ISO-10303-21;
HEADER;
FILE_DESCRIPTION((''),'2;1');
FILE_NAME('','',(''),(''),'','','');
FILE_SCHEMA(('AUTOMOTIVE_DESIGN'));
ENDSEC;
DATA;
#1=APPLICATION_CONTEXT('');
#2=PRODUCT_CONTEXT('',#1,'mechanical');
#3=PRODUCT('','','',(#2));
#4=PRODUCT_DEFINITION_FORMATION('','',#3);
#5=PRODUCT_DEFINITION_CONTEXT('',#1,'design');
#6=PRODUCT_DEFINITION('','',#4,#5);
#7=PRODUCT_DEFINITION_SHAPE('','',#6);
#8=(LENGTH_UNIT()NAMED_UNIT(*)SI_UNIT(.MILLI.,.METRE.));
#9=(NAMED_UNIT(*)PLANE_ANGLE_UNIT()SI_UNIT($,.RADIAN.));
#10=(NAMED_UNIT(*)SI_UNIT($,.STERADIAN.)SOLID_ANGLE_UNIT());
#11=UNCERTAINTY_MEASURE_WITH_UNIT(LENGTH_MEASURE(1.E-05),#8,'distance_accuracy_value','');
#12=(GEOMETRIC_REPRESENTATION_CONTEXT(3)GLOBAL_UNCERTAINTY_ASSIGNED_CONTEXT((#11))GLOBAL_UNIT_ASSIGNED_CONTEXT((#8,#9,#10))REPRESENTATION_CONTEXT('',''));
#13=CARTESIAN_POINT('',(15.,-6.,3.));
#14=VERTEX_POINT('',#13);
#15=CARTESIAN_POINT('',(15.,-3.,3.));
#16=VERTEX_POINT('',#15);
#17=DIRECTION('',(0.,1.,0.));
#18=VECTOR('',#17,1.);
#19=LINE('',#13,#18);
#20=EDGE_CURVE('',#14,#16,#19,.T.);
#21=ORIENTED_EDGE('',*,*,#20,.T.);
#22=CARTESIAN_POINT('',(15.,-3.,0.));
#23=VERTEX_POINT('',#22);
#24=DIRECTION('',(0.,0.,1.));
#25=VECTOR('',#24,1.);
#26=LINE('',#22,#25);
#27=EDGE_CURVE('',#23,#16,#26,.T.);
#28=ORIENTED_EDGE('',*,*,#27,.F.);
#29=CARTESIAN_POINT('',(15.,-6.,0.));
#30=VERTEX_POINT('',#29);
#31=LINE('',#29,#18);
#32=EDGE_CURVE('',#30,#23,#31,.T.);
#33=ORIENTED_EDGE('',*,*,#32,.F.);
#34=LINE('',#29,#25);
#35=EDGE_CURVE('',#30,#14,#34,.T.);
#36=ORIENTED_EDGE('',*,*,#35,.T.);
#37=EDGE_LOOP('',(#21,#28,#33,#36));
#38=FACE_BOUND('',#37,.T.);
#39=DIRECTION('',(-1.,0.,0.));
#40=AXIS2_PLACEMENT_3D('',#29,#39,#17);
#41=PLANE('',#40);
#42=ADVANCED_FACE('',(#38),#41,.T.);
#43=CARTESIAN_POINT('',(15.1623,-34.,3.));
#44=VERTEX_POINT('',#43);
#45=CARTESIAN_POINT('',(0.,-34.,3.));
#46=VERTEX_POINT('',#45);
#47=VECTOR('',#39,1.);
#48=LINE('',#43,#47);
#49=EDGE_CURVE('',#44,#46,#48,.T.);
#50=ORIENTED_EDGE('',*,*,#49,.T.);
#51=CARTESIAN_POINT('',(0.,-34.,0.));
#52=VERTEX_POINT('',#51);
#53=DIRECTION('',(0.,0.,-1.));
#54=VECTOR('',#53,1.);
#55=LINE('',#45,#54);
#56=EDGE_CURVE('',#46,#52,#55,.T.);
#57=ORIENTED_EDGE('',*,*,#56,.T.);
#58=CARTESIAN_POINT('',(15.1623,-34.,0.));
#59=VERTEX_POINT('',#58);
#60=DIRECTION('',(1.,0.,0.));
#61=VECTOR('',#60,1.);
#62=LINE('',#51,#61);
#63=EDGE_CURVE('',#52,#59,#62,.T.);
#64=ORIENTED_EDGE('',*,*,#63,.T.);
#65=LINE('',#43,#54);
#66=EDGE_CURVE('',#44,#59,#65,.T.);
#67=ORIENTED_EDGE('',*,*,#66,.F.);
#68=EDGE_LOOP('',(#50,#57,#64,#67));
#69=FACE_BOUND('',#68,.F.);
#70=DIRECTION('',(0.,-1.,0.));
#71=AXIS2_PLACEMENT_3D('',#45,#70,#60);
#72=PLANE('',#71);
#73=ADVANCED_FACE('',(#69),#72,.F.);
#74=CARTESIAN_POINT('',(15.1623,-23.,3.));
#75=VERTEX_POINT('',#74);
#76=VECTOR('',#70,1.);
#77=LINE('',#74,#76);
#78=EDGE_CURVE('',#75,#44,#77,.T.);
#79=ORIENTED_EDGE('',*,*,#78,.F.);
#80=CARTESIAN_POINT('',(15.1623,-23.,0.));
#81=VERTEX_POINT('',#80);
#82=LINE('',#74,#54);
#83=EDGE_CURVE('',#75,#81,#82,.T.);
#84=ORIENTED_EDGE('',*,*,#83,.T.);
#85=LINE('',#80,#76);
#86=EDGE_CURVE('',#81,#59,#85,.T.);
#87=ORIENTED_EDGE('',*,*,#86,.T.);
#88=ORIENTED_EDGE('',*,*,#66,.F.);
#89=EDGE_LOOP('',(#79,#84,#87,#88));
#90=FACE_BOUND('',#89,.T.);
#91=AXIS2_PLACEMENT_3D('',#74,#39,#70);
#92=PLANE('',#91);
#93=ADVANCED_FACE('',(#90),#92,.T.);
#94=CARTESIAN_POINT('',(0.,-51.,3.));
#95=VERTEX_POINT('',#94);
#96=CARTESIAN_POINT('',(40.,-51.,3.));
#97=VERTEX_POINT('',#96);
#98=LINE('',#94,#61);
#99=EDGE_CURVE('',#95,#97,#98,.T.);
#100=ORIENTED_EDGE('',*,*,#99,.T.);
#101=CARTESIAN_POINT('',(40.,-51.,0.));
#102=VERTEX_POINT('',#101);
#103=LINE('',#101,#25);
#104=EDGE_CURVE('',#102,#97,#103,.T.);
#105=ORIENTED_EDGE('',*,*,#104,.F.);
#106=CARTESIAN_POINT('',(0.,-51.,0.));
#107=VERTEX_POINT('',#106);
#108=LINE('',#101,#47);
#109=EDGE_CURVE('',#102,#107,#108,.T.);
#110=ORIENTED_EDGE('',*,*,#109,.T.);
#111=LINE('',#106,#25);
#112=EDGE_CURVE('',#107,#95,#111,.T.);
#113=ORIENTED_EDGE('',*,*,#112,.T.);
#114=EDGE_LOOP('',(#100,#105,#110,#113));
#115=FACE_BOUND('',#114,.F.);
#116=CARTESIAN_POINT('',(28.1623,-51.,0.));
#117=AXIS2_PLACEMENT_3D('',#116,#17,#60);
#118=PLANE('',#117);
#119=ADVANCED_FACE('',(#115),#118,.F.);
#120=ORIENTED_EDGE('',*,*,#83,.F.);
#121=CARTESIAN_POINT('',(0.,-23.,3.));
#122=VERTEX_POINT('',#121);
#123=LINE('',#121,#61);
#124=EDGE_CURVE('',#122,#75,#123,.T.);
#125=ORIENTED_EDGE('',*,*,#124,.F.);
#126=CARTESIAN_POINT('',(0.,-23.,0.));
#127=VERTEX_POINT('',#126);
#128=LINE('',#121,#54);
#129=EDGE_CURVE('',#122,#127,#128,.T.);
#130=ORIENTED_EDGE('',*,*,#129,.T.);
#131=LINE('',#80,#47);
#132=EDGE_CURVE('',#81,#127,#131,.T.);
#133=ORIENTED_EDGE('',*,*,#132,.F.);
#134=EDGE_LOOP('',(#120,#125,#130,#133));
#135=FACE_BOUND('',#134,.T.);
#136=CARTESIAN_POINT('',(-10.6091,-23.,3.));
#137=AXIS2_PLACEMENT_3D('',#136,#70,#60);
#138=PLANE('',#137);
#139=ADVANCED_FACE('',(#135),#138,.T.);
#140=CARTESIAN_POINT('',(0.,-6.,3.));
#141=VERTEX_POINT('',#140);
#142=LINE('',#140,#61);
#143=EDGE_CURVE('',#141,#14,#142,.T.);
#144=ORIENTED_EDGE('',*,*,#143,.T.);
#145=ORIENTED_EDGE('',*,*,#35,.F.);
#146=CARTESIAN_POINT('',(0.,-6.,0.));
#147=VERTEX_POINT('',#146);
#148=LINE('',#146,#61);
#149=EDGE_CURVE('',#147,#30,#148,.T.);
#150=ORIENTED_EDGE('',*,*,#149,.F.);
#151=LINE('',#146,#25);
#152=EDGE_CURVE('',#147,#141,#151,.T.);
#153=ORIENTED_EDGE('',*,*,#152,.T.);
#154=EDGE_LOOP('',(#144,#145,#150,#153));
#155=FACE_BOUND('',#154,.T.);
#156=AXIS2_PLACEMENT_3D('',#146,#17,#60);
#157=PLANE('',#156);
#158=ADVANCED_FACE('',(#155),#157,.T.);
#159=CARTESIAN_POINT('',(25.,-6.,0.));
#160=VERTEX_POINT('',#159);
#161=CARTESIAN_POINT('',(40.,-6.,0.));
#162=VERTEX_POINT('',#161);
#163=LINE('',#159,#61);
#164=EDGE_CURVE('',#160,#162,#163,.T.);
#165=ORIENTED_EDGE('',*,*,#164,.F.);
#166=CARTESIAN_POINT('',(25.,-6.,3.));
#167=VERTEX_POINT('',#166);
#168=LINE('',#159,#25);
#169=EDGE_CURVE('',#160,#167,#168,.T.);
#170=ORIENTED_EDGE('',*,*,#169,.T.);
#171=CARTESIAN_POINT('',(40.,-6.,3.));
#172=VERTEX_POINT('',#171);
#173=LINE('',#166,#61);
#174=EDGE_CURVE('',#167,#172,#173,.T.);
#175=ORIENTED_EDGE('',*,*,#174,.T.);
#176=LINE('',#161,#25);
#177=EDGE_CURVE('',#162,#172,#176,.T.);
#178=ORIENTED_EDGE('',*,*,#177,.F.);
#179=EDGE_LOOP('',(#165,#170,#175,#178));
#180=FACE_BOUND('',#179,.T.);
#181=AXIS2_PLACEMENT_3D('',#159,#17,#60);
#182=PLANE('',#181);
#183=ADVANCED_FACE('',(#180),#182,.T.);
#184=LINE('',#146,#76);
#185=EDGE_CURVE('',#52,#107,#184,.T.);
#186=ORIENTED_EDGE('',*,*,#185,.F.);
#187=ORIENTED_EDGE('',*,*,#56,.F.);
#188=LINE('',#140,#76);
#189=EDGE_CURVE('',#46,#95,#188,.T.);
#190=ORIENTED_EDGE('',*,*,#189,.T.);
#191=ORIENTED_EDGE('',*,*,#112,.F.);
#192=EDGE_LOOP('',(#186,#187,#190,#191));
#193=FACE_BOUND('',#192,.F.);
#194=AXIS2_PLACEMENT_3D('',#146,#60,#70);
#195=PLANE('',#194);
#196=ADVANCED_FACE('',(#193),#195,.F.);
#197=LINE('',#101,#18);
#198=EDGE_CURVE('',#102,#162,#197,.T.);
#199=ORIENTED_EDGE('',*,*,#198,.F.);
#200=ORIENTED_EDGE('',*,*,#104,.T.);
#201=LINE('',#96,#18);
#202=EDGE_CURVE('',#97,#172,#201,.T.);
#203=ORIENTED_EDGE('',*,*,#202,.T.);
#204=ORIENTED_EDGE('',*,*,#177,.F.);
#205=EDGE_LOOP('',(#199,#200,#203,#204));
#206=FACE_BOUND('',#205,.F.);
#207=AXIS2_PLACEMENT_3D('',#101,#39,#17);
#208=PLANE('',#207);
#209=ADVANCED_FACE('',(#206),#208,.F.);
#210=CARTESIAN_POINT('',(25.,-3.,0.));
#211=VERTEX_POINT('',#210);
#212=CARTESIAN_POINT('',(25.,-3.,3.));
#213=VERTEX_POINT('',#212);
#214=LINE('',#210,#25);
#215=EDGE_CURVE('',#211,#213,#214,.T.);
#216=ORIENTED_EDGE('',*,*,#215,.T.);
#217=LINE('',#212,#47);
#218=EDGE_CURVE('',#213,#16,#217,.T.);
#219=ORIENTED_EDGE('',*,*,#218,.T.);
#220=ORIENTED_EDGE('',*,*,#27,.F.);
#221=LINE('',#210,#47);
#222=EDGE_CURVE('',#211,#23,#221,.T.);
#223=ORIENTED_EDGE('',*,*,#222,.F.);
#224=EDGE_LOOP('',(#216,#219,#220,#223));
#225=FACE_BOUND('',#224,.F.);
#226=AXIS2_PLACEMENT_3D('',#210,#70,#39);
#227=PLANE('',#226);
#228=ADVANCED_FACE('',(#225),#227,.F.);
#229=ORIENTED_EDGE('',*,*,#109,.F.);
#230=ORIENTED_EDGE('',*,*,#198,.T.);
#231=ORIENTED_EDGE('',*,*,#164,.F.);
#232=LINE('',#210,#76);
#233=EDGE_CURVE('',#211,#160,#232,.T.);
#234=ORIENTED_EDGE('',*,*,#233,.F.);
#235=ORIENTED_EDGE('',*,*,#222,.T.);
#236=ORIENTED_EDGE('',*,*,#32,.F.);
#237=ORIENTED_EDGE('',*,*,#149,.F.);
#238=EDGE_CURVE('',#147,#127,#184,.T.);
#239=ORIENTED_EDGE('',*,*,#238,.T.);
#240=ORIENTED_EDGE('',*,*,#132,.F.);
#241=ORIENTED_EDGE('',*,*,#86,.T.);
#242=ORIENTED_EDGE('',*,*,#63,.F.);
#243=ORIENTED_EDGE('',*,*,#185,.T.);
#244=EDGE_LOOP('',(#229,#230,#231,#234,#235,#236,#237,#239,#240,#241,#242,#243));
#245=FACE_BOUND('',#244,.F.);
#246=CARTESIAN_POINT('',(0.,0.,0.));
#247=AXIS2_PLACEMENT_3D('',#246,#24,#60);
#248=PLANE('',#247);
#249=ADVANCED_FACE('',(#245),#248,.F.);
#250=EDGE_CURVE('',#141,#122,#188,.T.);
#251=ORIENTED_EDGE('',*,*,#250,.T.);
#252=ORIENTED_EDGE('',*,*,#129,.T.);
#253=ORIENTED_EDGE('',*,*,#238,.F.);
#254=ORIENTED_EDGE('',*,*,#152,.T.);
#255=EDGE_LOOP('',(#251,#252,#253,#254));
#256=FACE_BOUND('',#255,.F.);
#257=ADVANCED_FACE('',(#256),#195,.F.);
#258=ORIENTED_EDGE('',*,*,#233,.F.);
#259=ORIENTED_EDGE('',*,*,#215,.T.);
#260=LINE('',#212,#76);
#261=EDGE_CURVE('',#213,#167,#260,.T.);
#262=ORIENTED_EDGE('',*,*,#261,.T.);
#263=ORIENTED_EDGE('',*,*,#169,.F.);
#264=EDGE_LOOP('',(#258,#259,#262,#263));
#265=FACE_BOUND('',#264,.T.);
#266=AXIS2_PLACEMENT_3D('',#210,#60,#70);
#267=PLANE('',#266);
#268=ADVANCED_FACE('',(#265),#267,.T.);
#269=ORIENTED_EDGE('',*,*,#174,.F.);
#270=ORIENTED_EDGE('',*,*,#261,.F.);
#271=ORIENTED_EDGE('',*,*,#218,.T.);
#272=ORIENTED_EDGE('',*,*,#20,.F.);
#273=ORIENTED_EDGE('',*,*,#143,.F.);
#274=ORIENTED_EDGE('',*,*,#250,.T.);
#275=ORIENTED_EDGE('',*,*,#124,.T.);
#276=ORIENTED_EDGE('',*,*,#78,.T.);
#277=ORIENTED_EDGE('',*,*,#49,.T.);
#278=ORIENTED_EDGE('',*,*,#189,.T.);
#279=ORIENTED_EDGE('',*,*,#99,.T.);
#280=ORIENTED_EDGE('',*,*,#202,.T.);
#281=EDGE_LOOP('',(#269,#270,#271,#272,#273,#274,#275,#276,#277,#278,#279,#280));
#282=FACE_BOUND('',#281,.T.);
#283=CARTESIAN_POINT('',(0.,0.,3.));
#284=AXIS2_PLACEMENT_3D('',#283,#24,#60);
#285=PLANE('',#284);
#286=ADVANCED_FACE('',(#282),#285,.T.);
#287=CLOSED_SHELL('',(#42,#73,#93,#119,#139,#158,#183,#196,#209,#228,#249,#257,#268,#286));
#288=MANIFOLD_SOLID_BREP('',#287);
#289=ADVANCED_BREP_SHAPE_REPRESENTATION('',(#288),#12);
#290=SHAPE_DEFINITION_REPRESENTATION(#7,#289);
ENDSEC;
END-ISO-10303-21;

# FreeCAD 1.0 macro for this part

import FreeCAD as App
import Part
import Sketcher
from FreeCAD import Vector


def add_polygon(sketch, points):
    """Adds a closed chain of lines whose ends are joined by coincident constraints."""
    first, n = sketch.GeometryCount, len(points)
    for a, b in zip(points, points[1:] + points[:1]):
        sketch.addGeometry(Part.LineSegment(App.Vector(*a, 0), App.Vector(*b, 0)), False)
    for i in range(n):
        sketch.addConstraint(Sketcher.Constraint("Coincident", first + i, 2, first + (i + 1) % n, 1))

doc = App.newDocument("Part")
params = doc.addObject("Spreadsheet::Sheet", "Params")
for row, (alias, value) in enumerate([
    ("sketch1_width", "10 mm"),
    ("sketch1_width2", "15 mm"),
    ("sketch1_height", "3 mm"),
    ("sketch1_height2", "45 mm"),
    ("pad1_length", "3 mm"),
    ("sketch2_height", "11 mm"),
    ("pocket1_length", "3 mm"),
    ("sketch3_height", "11 mm"),
    ("pocket2_length", "3 mm"),
], start=1):
    params.set(f"A{row}", alias)
    params.set(f"B{row}", "=" + value)
    params.setAlias(f"B{row}", alias)

body = doc.addObject("PartDesign::Body", "Body")

# Sketch on XY plane
sketch1 = body.newObject("Sketcher::SketchObject", "Sketch")
sketch1.AttachmentSupport = (doc.getObject("XY_Plane"), [""])
sketch1.MapMode = "FlatFace"
add_polygon(sketch1, [(25, -6), (25, -3), (15, -3), (15, -6), (0, -6), (0, -51), (40, -51), (40, -6)])  # lines 0-7
sketch1.addConstraint([
    Sketcher.Constraint("Vertical", 0),
    Sketcher.Constraint("Horizontal", 1),
    Sketcher.Constraint("Vertical", 2),
    Sketcher.Constraint("Horizontal", 3),
    Sketcher.Constraint("Vertical", 4),
    Sketcher.Constraint("Horizontal", 5),
    Sketcher.Constraint("Vertical", 6),
    Sketcher.Constraint("Horizontal", 7),
    Sketcher.Constraint("PointOnObject", 3, 2, -2),
    Sketcher.Constraint("Horizontal", 3, 2, 6, 2),
    Sketcher.Constraint("Equal", 3, 7),
    Sketcher.Constraint("DistanceX", 1, 2, 1, 1, 10.0),
    Sketcher.Constraint("DistanceX", 3, 2, 3, 1, 15.0),
    Sketcher.Constraint("DistanceY", 0, 1, 0, 2, 3.0),
    Sketcher.Constraint("DistanceY", 4, 2, 4, 1, 45.0),
    Sketcher.Constraint("DistanceY", 0, 2, -1, 1, 3.0),
])
sketch1.setExpression("Constraints[19]", "Params.sketch1_width")
sketch1.setExpression("Constraints[20]", "Params.sketch1_width2")
sketch1.setExpression("Constraints[21]", "Params.sketch1_height")
sketch1.setExpression("Constraints[22]", "Params.sketch1_height2")
pad1 = body.newObject("PartDesign::Pad", "Pad")
pad1.Profile = sketch1
pad1.setExpression("Length", "Params.pad1_length")

# Sketch on XY plane
sketch2 = body.newObject("Sketcher::SketchObject", "Sketch001")
sketch2.AttachmentSupport = (doc.getObject("XY_Plane"), [""])
sketch2.MapMode = "FlatFace"
sketch2.AttachmentOffset = App.Placement(Vector(0, 0, 3), App.Rotation())
add_polygon(sketch2, [(0, -23), (0, -34), (12, -34), (12, -23)])  # lines 0-3
sketch2.addConstraint([
    Sketcher.Constraint("Vertical", 0),
    Sketcher.Constraint("Horizontal", 1),
    Sketcher.Constraint("Vertical", 2),
    Sketcher.Constraint("Horizontal", 3),
    Sketcher.Constraint("PointOnObject", 0, 2, -2),
    Sketcher.Constraint("DistanceY", 0, 2, 0, 1, 11.0),
    Sketcher.Constraint("DistanceY", 0, 2, -1, 1, 34.0),
    Sketcher.Constraint("DistanceX", 1, 1, 1, 2, 12.1623),
])
sketch2.setExpression("Constraints[9]", "Params.sketch2_height")
pocket1 = body.newObject("PartDesign::Pocket", "Pocket")
pocket1.Profile = sketch2
pocket1.setExpression("Length", "Params.pocket1_length")

# Sketch on XY plane
sketch3 = body.newObject("Sketcher::SketchObject", "Sketch002")
sketch3.AttachmentSupport = (doc.getObject("XY_Plane"), [""])
sketch3.MapMode = "FlatFace"
sketch3.AttachmentOffset = App.Placement(Vector(0, 0, 3), App.Rotation())
add_polygon(sketch3, [(15, -34), (15, -23), (-11, -23), (-11, -34)])  # lines 0-3
sketch3.addConstraint([
    Sketcher.Constraint("Vertical", 0),
    Sketcher.Constraint("Horizontal", 1),
    Sketcher.Constraint("Vertical", 2),
    Sketcher.Constraint("Horizontal", 3),
    Sketcher.Constraint("DistanceY", 0, 1, 0, 2, 11.0),
    Sketcher.Constraint("DistanceY", 0, 2, -1, 1, 23.0),
    Sketcher.Constraint("DistanceX", 1, 2, 1, 1, 25.7714),
    Sketcher.Constraint("DistanceX", 1, 2, -1, 1, 10.609),
])
sketch3.setExpression("Constraints[8]", "Params.sketch3_height")
pocket2 = body.newObject("PartDesign::Pocket", "Pocket001")
pocket2.Profile = sketch3
pocket2.setExpression("Length", "Params.pocket2_length")

doc.recompute()
